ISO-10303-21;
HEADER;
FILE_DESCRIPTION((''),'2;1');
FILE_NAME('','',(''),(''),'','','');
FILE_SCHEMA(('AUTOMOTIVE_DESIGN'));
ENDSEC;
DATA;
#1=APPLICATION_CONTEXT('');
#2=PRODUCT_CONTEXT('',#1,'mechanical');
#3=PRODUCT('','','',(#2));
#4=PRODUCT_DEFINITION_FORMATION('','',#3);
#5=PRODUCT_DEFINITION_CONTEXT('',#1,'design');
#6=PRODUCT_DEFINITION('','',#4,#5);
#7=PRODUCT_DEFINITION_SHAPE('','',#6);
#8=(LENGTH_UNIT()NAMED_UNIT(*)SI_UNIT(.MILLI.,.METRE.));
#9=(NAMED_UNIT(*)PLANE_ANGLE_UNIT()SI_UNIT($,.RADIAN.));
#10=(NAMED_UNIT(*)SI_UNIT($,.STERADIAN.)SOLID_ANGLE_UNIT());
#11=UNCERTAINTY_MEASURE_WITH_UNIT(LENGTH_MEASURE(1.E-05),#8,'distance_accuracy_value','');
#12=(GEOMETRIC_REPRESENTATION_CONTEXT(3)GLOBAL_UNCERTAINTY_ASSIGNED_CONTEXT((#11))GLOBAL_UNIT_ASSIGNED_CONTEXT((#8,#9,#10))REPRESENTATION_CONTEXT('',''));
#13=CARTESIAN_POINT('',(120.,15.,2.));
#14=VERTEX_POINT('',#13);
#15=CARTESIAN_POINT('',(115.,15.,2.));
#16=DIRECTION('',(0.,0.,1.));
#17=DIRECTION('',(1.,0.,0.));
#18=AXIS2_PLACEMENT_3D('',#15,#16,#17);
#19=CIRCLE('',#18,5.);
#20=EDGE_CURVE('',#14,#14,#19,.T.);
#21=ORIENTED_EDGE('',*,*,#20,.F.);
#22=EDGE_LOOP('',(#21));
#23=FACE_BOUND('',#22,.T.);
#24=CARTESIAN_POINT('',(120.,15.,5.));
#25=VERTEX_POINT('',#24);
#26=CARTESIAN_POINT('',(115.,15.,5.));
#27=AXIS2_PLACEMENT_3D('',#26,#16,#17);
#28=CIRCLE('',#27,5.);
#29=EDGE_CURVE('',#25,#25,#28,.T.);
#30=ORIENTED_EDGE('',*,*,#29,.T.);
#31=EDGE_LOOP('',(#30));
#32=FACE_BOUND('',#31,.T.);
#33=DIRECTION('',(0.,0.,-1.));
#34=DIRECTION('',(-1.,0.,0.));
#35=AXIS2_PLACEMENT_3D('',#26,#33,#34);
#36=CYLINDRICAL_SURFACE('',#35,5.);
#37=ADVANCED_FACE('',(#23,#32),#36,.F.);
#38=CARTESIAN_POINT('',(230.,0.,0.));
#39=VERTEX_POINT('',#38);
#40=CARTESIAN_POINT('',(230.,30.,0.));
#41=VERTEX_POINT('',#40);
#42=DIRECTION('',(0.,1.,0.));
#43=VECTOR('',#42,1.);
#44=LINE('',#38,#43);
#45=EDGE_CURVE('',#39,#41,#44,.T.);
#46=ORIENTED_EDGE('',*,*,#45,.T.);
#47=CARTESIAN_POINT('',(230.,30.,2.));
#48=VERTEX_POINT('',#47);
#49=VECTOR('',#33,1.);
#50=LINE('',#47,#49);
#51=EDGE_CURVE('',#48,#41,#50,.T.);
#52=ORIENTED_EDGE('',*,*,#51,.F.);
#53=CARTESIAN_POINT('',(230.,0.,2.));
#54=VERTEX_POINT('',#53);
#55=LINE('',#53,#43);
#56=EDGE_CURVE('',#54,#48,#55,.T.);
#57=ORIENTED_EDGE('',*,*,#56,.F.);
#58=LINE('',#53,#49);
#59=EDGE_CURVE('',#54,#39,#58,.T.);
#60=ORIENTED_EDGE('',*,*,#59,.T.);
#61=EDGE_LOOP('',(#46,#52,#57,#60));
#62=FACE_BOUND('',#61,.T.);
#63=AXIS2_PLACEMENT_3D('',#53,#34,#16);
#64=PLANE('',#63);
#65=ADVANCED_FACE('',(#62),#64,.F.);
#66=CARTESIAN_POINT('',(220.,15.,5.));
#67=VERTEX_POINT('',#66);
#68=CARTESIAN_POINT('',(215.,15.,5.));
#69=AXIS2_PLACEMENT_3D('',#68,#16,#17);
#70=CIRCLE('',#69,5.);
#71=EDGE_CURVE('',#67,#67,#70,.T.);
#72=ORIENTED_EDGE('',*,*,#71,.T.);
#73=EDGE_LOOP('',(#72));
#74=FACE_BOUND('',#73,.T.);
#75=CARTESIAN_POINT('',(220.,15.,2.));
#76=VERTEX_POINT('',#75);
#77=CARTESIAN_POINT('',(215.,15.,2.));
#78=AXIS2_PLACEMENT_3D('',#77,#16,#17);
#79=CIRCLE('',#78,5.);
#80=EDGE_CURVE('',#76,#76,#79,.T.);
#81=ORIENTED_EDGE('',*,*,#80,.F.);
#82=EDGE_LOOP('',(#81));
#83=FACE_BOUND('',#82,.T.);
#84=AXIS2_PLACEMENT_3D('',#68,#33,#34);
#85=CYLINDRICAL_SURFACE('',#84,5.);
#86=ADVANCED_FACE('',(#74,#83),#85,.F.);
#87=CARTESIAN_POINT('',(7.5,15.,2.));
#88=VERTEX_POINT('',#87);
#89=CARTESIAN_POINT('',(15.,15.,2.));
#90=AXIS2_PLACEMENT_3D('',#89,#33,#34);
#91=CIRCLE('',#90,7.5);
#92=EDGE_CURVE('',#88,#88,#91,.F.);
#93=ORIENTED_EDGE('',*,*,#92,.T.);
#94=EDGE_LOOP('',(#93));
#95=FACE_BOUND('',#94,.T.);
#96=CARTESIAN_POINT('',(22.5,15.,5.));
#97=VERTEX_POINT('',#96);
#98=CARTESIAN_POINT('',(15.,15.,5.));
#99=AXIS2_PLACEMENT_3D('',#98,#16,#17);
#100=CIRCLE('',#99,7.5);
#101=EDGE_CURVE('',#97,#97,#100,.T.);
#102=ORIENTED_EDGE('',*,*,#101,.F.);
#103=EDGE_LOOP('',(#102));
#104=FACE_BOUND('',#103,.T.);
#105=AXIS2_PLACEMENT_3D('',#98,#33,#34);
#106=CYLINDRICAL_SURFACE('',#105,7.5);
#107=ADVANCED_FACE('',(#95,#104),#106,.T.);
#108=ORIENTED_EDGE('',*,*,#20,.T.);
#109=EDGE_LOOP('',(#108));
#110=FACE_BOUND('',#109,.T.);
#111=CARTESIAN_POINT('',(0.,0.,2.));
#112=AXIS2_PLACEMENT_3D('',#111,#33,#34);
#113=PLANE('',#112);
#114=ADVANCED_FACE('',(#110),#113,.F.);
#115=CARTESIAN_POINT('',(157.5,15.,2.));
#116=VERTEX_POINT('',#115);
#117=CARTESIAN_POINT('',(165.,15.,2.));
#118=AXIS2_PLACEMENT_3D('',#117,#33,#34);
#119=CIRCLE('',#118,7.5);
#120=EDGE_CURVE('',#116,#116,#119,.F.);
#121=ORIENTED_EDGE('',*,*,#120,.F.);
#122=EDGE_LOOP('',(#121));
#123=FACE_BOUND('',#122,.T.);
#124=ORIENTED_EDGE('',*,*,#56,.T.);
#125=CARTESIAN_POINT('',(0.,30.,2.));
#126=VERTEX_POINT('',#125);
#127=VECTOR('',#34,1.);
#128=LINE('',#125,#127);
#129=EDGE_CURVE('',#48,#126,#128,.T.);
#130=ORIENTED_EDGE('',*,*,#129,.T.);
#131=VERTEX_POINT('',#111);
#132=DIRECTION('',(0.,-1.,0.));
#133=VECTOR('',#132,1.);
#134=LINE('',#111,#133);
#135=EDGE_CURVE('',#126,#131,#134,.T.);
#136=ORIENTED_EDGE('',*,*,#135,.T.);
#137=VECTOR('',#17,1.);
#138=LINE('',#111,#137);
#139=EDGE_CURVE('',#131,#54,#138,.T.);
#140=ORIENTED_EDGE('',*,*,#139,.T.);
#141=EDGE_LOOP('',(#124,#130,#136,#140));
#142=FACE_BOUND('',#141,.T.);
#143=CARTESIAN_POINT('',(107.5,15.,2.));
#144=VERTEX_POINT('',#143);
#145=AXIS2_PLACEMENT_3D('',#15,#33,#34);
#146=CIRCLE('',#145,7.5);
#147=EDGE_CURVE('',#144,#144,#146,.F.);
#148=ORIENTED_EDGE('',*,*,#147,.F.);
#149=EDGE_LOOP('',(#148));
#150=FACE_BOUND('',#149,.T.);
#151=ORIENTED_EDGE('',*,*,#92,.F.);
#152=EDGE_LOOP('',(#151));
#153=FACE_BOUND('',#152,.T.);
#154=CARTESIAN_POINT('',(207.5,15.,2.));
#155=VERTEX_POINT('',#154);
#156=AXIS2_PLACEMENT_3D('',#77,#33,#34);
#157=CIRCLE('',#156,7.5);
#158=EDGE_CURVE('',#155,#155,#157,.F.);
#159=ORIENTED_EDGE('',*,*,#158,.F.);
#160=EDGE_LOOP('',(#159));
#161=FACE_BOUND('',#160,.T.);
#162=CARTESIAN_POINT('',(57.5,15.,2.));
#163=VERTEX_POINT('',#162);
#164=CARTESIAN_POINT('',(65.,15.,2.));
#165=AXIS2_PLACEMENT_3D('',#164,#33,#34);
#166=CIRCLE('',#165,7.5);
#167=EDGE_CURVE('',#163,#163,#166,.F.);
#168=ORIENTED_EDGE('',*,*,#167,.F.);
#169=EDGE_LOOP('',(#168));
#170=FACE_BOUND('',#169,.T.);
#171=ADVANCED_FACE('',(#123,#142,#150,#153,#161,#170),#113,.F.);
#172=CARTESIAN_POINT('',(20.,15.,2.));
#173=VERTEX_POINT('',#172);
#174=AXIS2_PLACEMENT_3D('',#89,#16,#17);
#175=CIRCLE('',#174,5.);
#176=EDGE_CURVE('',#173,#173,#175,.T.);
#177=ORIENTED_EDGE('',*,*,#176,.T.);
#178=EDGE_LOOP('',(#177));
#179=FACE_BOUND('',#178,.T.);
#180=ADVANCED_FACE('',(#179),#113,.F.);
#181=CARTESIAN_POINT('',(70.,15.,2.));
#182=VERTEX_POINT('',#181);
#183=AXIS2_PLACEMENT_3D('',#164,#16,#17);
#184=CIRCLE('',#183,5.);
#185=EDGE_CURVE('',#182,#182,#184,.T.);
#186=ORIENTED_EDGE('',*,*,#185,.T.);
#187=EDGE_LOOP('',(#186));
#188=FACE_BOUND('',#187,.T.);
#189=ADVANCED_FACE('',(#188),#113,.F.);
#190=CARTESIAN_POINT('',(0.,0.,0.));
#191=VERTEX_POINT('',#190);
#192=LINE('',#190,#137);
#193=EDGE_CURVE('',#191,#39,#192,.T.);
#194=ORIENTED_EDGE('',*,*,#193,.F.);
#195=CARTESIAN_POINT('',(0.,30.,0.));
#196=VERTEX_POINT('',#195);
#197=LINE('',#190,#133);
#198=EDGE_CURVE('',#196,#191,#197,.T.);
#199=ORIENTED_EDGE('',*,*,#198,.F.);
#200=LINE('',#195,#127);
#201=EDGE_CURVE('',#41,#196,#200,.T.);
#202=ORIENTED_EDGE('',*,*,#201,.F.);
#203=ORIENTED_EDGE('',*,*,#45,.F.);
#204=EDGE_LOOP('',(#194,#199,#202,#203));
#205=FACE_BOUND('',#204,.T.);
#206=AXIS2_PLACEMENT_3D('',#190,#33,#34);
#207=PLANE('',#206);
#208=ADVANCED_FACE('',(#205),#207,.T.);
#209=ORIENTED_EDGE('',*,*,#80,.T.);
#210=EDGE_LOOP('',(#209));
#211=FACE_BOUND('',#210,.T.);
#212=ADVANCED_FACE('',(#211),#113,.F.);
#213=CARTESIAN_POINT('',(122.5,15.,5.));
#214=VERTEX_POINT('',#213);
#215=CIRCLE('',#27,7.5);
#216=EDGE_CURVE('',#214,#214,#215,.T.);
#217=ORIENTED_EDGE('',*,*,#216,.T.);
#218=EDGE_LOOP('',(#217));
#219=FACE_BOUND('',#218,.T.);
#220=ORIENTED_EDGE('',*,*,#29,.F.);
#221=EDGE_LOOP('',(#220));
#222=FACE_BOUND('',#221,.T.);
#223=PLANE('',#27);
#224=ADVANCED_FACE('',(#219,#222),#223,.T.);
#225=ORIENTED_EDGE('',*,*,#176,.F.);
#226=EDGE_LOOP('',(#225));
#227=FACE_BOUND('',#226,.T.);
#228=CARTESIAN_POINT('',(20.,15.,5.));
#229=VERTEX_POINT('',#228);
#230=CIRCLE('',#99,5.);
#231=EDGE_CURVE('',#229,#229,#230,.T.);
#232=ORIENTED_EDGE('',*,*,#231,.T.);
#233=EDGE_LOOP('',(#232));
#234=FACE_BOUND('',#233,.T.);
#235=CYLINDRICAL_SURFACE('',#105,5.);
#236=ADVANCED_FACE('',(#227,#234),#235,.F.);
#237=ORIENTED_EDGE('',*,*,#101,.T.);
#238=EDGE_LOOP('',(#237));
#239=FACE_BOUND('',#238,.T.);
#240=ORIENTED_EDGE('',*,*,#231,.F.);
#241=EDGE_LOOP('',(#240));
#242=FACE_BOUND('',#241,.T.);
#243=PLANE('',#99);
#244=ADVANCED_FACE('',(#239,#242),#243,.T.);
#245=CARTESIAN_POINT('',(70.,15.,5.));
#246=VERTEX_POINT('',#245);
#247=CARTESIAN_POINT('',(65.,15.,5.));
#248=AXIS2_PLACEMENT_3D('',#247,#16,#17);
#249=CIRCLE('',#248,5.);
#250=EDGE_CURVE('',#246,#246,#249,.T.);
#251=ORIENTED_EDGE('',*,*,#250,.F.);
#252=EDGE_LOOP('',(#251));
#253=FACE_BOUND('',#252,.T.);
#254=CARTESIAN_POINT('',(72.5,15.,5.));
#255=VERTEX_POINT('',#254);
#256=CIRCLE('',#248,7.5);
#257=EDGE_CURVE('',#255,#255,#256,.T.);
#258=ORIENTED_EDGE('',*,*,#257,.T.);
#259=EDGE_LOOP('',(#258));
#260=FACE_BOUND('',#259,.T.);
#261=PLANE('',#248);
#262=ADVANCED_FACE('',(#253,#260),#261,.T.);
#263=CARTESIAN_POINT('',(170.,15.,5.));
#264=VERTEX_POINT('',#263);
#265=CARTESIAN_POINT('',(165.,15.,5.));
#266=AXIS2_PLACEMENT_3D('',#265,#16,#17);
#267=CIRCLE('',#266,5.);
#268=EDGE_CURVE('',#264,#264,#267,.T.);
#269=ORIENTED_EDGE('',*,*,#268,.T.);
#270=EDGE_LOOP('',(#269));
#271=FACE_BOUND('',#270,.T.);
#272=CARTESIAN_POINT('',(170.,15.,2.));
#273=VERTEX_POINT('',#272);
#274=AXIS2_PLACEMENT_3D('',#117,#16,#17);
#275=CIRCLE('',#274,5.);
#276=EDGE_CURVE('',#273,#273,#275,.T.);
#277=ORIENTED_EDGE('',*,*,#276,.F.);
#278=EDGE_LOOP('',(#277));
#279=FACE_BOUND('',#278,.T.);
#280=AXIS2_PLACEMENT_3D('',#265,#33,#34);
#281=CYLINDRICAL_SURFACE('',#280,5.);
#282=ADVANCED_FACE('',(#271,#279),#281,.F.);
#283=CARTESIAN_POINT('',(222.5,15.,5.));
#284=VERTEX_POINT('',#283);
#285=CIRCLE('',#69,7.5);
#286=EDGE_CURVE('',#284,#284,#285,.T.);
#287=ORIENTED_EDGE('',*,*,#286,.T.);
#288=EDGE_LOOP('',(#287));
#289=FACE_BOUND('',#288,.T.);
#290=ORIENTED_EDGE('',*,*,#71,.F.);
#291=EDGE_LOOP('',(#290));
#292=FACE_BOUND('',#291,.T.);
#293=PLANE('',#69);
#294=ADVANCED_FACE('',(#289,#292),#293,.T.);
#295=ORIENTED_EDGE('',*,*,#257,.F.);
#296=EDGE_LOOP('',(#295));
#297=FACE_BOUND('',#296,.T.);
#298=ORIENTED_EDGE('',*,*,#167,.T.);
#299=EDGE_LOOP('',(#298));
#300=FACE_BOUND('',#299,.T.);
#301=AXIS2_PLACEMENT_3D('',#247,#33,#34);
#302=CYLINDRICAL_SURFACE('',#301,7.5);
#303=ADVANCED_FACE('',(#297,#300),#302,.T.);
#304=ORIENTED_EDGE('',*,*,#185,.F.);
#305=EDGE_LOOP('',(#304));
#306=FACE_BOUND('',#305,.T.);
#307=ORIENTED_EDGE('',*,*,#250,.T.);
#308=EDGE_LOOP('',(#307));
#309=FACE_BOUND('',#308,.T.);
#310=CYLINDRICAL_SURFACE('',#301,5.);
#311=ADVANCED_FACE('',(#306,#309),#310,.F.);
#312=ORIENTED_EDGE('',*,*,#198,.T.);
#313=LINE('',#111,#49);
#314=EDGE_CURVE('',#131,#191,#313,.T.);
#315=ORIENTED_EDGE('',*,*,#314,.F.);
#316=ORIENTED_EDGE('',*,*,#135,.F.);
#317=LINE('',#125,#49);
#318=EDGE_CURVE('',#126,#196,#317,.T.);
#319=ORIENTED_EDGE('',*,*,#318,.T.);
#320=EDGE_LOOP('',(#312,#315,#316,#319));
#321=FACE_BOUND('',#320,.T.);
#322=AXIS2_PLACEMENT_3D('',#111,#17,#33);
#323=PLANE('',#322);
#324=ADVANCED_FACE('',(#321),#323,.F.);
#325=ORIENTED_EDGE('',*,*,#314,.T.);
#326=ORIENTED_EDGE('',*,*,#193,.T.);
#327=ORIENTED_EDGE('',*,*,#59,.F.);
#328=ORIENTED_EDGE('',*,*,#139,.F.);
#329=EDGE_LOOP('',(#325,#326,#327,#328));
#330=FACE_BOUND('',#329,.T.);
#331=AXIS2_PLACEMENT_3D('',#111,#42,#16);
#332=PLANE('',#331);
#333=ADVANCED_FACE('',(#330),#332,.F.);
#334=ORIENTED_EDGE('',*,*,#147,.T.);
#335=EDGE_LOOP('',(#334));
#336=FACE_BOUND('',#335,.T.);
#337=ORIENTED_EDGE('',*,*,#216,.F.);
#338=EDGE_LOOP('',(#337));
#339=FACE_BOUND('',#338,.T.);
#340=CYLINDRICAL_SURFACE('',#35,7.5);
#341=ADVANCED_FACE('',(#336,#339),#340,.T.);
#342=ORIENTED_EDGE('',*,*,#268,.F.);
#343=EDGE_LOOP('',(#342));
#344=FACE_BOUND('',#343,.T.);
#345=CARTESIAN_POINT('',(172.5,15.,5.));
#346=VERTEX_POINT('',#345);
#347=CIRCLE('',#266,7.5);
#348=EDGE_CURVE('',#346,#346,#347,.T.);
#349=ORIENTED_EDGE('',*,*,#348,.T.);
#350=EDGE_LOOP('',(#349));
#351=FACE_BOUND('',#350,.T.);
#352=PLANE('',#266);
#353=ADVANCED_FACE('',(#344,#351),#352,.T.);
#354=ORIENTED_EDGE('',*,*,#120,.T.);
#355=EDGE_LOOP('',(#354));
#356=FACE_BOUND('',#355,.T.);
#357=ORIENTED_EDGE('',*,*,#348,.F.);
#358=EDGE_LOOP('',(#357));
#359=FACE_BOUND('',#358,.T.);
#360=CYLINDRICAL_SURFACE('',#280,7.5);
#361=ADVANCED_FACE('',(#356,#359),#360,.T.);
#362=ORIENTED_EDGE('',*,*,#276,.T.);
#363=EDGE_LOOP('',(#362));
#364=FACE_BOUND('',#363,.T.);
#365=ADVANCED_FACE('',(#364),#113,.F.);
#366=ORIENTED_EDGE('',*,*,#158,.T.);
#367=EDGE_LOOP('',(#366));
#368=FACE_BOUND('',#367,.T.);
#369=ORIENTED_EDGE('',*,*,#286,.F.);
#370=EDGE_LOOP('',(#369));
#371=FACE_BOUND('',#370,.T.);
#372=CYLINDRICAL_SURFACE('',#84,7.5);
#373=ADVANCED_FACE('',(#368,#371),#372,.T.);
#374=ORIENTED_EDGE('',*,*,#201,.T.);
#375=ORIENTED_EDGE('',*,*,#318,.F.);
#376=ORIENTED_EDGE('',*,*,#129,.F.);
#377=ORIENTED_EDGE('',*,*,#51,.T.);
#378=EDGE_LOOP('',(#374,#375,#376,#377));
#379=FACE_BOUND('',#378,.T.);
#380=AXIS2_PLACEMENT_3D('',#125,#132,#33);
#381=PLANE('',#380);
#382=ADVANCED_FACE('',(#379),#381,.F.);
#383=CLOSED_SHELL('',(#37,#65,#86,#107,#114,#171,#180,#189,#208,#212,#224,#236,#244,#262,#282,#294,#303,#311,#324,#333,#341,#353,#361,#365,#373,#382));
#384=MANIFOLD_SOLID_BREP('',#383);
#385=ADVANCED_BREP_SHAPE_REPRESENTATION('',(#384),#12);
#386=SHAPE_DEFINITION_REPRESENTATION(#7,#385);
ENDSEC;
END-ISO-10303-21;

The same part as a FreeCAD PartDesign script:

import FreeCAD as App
import Part
import Sketcher

V = App.Vector

doc = App.newDocument("Part")
params = doc.addObject("Spreadsheet::Sheet", "Params")
for row, (alias, value) in enumerate([
    ("sketch1_width", "230 mm"),
    ("sketch1_height", "30 mm"),
    ("pad1_length", "2 mm"),
    ("sketch2_diameter", "15 mm"),
    ("sketch2_diameter2", "10 mm"),
    ("pad2_length", "3 mm"),
], start=1):
    params.set(f"A{row}", alias)
    params.set(f"B{row}", "=" + value)
    params.setAlias(f"B{row}", alias)

body = doc.addObject("PartDesign::Body", "Body")

# Sketch on XY plane
sketch1 = body.newObject("Sketcher::SketchObject", "Sketch")
sketch1.AttachmentSupport = (doc.getObject("XY_Plane"), [""])
sketch1.MapMode = "FlatFace"
sketch1.addGeometry([
    Part.LineSegment(V(0, 30, 0), V(0, 0, 0)),
    Part.LineSegment(V(0, 0, 0), V(230, 0, 0)),
    Part.LineSegment(V(230, 0, 0), V(230, 30, 0)),
    Part.LineSegment(V(230, 30, 0), V(0, 30, 0)),
], False)
sketch1.addConstraint([
    Sketcher.Constraint("Coincident", 0, 2, 1, 1),
    Sketcher.Constraint("Coincident", 1, 2, 2, 1),
    Sketcher.Constraint("Coincident", 2, 2, 3, 1),
    Sketcher.Constraint("Coincident", 3, 2, 0, 1),
    Sketcher.Constraint("Vertical", 0),
    Sketcher.Constraint("Horizontal", 1),
    Sketcher.Constraint("Vertical", 2),
    Sketcher.Constraint("Horizontal", 3),
    Sketcher.Constraint("Coincident", 0, 2, -1, 1),
    Sketcher.Constraint("DistanceX", 1, 1, 1, 2, 230.0),
    Sketcher.Constraint("DistanceY", 0, 2, 0, 1, 30.0),
])
sketch1.setExpression("Constraints[9]", "Params.sketch1_width")
sketch1.setExpression("Constraints[10]", "Params.sketch1_height")
pad1 = body.newObject("PartDesign::Pad", "Pad")
pad1.Profile = sketch1
pad1.setExpression("Length", "Params.pad1_length")

# Sketch on XY plane
sketch2 = body.newObject("Sketcher::SketchObject", "Sketch001")
sketch2.AttachmentSupport = (doc.getObject("XY_Plane"), [""])
sketch2.MapMode = "FlatFace"
sketch2.AttachmentOffset = App.Placement(V(0, 0, 2), App.Rotation())
sketch2.addGeometry([
    Part.Circle(V(15, 15, 0), V(0, 0, 1), 8),  # 0
    Part.Circle(V(15, 15, 0), V(0, 0, 1), 5),  # 1
    Part.Circle(V(65, 15, 0), V(0, 0, 1), 8),  # 2
    Part.Circle(V(65, 15, 0), V(0, 0, 1), 5),  # 3
    Part.Circle(V(115, 15, 0), V(0, 0, 1), 8),  # 4
    Part.Circle(V(115, 15, 0), V(0, 0, 1), 5),  # 5
    Part.Circle(V(165, 15, 0), V(0, 0, 1), 8),  # 6
    Part.Circle(V(165, 15, 0), V(0, 0, 1), 5),  # 7
    Part.Circle(V(215, 15, 0), V(0, 0, 1), 8),  # 8
    Part.Circle(V(215, 15, 0), V(0, 0, 1), 5),  # 9
], False)
sketch2.addConstraint([
    Sketcher.Constraint("Coincident", 1, 3, 0, 3),
    Sketcher.Constraint("Coincident", 3, 3, 2, 3),
    Sketcher.Constraint("Coincident", 5, 3, 4, 3),
    Sketcher.Constraint("Coincident", 7, 3, 6, 3),
    Sketcher.Constraint("Coincident", 9, 3, 8, 3),
    Sketcher.Constraint("Equal", 0, 2),
    Sketcher.Constraint("Equal", 1, 3),
    Sketcher.Constraint("Equal", 2, 4),
    Sketcher.Constraint("Equal", 3, 5),
    Sketcher.Constraint("Equal", 4, 6),
    Sketcher.Constraint("Equal", 5, 7),
    Sketcher.Constraint("Equal", 6, 8),
    Sketcher.Constraint("Equal", 7, 9),
    Sketcher.Constraint("Horizontal", 1, 3, 2, 3),
    Sketcher.Constraint("Horizontal", 3, 3, 4, 3),
    Sketcher.Constraint("Horizontal", 5, 3, 6, 3),
    Sketcher.Constraint("Horizontal", 7, 3, 8, 3),
    Sketcher.Constraint("Diameter", 0, 15.0),
    Sketcher.Constraint("Diameter", 1, 10.0),
    Sketcher.Constraint("DistanceX", -1, 1, 0, 3, 15.0),
    Sketcher.Constraint("DistanceY", -1, 1, 0, 3, 15.0),
    Sketcher.Constraint("DistanceX", -1, 1, 2, 3, 65.0),
    Sketcher.Constraint("DistanceX", -1, 1, 4, 3, 115.0),
    Sketcher.Constraint("DistanceX", -1, 1, 6, 3, 165.0),
    Sketcher.Constraint("DistanceX", -1, 1, 8, 3, 215.0),
])
sketch2.setExpression("Constraints[17]", "Params.sketch2_diameter")
sketch2.setExpression("Constraints[18]", "Params.sketch2_diameter2")
pad2 = body.newObject("PartDesign::Pad", "Pad001")
pad2.Profile = sketch2
pad2.setExpression("Length", "Params.pad2_length")

doc.recompute()
